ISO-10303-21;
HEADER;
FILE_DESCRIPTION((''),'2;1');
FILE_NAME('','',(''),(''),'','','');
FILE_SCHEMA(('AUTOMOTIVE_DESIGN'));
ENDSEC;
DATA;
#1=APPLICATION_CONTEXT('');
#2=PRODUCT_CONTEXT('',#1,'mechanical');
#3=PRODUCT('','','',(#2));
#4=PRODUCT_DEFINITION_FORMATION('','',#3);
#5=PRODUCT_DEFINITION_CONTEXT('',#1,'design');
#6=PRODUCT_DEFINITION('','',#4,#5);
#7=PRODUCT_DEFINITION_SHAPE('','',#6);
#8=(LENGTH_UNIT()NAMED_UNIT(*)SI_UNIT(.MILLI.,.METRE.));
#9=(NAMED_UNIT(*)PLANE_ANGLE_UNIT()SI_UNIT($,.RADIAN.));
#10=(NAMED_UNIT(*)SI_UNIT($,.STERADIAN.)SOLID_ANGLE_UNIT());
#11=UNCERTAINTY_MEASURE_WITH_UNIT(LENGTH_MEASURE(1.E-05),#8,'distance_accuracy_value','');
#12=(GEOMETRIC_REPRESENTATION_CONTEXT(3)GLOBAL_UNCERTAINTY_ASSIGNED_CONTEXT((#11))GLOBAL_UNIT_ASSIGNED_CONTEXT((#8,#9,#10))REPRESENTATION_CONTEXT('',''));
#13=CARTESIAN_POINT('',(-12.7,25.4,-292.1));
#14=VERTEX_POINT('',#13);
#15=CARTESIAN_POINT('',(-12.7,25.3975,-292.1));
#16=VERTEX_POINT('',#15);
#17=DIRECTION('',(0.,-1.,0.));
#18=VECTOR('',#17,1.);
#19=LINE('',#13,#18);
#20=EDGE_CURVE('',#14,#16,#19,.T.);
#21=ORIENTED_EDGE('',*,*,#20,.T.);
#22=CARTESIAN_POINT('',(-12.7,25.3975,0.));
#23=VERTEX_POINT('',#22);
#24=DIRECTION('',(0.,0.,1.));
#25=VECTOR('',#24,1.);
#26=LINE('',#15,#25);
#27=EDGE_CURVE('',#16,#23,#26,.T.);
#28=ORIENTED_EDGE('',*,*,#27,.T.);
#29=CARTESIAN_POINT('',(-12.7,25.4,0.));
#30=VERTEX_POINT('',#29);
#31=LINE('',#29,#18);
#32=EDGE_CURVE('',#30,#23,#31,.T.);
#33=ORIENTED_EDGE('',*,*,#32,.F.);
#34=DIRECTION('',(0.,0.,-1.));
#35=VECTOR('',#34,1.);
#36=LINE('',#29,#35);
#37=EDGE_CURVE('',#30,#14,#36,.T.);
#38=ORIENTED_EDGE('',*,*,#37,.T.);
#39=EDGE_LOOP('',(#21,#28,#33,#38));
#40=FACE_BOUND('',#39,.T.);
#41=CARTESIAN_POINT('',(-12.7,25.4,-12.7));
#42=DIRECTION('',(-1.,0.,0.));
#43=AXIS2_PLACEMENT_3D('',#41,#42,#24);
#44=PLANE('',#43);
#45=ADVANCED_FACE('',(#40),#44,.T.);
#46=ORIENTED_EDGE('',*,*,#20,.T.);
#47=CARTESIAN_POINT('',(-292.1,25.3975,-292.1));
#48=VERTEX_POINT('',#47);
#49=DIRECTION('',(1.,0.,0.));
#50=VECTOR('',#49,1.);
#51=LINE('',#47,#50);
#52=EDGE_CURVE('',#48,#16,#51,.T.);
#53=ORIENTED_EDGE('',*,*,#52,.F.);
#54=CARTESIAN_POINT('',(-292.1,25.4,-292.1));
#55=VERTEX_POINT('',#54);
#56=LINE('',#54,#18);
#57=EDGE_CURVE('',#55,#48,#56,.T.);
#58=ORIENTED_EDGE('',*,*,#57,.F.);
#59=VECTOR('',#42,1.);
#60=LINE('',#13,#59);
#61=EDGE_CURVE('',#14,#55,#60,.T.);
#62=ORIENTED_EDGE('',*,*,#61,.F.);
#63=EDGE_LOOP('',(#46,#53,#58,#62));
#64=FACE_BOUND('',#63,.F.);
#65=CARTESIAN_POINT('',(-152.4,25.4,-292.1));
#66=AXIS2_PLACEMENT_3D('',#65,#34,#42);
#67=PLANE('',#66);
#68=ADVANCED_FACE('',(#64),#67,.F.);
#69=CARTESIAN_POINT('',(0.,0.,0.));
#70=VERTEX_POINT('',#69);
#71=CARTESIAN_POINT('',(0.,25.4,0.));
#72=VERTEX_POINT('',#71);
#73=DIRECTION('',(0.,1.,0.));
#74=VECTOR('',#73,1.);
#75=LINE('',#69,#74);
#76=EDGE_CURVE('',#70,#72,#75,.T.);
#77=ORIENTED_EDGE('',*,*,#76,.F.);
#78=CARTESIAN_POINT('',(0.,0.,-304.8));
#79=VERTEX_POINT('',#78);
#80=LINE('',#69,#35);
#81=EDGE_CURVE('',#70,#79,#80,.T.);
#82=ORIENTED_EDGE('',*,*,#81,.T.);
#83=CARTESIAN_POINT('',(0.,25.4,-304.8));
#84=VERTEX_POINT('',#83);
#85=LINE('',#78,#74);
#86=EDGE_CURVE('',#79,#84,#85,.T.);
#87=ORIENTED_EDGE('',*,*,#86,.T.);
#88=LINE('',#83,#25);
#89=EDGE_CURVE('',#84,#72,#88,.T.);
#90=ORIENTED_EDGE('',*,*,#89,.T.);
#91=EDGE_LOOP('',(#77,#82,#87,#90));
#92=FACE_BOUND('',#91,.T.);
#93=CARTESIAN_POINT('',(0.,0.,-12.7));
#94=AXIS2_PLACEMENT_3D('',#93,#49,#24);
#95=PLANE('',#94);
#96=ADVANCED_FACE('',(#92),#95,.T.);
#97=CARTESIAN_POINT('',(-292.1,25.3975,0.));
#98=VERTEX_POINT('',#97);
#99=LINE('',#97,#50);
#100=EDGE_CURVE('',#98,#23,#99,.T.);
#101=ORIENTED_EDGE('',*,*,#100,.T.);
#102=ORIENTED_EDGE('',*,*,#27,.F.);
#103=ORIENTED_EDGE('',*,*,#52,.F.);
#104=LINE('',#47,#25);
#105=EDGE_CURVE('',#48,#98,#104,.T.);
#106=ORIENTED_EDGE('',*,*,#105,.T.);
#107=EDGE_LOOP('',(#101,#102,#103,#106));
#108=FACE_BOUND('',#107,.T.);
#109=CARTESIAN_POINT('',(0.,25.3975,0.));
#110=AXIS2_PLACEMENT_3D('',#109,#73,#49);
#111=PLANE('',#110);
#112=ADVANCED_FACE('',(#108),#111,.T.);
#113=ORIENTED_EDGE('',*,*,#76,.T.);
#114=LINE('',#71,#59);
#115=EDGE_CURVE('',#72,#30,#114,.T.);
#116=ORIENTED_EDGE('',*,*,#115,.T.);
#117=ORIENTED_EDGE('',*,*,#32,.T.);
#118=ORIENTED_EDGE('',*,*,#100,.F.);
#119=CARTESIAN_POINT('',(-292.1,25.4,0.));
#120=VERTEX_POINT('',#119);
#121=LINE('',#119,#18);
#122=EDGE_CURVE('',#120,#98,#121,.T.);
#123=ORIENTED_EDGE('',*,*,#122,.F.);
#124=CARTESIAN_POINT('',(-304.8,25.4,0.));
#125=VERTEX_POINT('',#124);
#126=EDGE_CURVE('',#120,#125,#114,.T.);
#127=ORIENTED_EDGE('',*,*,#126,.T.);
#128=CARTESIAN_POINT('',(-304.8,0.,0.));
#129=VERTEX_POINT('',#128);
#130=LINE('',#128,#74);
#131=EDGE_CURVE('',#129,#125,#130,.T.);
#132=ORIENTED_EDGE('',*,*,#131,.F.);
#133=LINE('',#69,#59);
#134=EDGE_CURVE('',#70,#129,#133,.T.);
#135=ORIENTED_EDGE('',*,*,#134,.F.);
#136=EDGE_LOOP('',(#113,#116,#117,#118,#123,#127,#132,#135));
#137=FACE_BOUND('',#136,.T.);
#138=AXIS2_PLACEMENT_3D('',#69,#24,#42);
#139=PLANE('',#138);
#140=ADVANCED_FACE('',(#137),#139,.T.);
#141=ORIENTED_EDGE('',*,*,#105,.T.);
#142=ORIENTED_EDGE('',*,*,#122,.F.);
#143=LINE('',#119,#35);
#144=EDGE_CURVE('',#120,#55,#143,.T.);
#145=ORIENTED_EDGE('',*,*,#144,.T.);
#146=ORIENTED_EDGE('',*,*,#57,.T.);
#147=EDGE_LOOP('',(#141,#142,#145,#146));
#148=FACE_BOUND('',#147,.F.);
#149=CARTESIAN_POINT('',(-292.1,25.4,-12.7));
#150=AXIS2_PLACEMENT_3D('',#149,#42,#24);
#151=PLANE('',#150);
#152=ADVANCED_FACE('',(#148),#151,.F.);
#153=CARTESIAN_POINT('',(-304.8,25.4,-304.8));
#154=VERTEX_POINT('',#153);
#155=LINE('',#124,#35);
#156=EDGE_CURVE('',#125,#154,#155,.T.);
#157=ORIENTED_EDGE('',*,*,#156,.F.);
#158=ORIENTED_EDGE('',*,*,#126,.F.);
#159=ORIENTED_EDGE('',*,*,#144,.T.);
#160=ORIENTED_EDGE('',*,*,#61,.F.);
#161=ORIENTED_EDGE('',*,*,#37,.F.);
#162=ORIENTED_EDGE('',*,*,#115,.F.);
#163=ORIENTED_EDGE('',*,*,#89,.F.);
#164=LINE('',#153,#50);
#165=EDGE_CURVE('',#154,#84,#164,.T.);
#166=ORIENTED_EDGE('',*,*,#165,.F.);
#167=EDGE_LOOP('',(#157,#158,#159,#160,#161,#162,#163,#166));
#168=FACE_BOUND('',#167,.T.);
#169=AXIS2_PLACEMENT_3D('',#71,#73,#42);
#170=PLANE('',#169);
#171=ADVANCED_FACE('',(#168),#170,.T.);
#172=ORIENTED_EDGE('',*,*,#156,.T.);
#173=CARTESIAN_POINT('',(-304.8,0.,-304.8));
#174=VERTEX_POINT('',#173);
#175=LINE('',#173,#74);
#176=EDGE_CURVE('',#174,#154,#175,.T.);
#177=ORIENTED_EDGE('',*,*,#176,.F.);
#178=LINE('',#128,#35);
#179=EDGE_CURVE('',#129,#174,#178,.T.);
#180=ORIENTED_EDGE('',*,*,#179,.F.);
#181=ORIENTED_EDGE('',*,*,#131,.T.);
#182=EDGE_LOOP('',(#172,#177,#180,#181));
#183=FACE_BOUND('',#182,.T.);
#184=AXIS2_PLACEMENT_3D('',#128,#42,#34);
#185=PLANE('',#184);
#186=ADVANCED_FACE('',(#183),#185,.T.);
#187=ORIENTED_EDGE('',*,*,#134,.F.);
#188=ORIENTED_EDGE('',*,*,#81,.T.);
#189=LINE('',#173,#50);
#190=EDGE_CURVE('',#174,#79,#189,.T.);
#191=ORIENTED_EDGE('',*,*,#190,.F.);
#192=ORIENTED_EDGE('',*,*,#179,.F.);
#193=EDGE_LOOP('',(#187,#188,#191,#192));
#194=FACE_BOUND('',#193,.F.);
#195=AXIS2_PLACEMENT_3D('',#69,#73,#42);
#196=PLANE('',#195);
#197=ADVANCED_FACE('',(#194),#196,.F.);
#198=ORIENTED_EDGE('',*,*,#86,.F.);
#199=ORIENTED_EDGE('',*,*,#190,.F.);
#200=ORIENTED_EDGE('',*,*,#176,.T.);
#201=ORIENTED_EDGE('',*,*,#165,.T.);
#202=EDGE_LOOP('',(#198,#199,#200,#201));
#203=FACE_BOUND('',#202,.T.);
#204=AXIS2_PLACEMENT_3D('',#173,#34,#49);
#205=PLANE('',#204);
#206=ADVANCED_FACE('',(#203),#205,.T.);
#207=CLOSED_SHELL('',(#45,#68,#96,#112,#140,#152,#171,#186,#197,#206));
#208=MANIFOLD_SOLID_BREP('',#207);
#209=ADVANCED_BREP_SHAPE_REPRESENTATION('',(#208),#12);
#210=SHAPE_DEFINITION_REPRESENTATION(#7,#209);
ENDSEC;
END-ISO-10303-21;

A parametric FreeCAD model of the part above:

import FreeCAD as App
import Part
import Sketcher
Q = App.Units.Quantity

doc = App.newDocument("Part")
params = doc.addObject("Spreadsheet::Sheet", "Params")
for row, (alias, value) in enumerate([
    ("sketch1_width", "12 in"),
    ("pad1_length", "1 in"),
    ("sketch2_width", "11 in"),
    ("sketch2_height", "11.5 in"),
    ("pocket1_length", "0.0000984 in"),
], start=1):
    params.set(f"A{row}", alias)
    params.set(f"B{row}", "=" + value)
    params.setAlias(f"B{row}", alias)

body = doc.addObject("PartDesign::Body", "Body")

# Sketch on XZ plane
sketch1 = body.newObject("Sketcher::SketchObject", "Sketch")
sketch1.AttachmentSupport = (doc.getObject("XZ_Plane"), [""])
sketch1.MapMode = "FlatFace"
sketch1.addGeometry(Part.LineSegment(App.Vector(-305, 0, 0), App.Vector(0, 0, 0)), False)
sketch1.addGeometry(Part.LineSegment(App.Vector(0, 0, 0), App.Vector(0, -305, 0)), False)
sketch1.addGeometry(Part.LineSegment(App.Vector(0, -305, 0), App.Vector(-305, -305, 0)), False)
sketch1.addGeometry(Part.LineSegment(App.Vector(-305, -305, 0), App.Vector(-305, 0, 0)), False)
sketch1.addConstraint(Sketcher.Constraint("Coincident", 0, 2, 1, 1))
sketch1.addConstraint(Sketcher.Constraint("Coincident", 1, 2, 2, 1))
sketch1.addConstraint(Sketcher.Constraint("Coincident", 2, 2, 3, 1))
sketch1.addConstraint(Sketcher.Constraint("Coincident", 3, 2, 0, 1))
sketch1.addConstraint(Sketcher.Constraint("Horizontal", 0))
sketch1.addConstraint(Sketcher.Constraint("Vertical", 1))
sketch1.addConstraint(Sketcher.Constraint("Horizontal", 2))
sketch1.addConstraint(Sketcher.Constraint("Vertical", 3))
sketch1.addConstraint(Sketcher.Constraint("Coincident", 0, 2, -1, 1))
sketch1.addConstraint(Sketcher.Constraint("Equal", 2, 1))
sketch1.addConstraint(Sketcher.Constraint("DistanceX", 0, 1, 0, 2, Q("12 in")))
sketch1.setExpression("Constraints[10]", "Params.sketch1_width")
pad1 = body.newObject("PartDesign::Pad", "Pad")
pad1.Profile = sketch1
pad1.setExpression("Length", "Params.pad1_length")
pad1.Reversed = True

# Sketch on XZ plane
sketch2 = body.newObject("Sketcher::SketchObject", "Sketch001")
sketch2.AttachmentSupport = (doc.getObject("XZ_Plane"), [""])
sketch2.MapMode = "FlatFace"
sketch2.AttachmentOffset = App.Placement(App.Vector(0, 0, -1 * 25.4), App.Rotation())
sketch2.addGeometry(Part.LineSegment(App.Vector(-292, 0, 0), App.Vector(-13, 0, 0)), False)
sketch2.addGeometry(Part.LineSegment(App.Vector(-13, 0, 0), App.Vector(-13, -292, 0)), False)
sketch2.addGeometry(Part.LineSegment(App.Vector(-13, -292, 0), App.Vector(-292, -292, 0)), False)
sketch2.addGeometry(Part.LineSegment(App.Vector(-292, -292, 0), App.Vector(-292, 0, 0)), False)
sketch2.addConstraint(Sketcher.Constraint("Coincident", 0, 2, 1, 1))
sketch2.addConstraint(Sketcher.Constraint("Coincident", 1, 2, 2, 1))
sketch2.addConstraint(Sketcher.Constraint("Coincident", 2, 2, 3, 1))
sketch2.addConstraint(Sketcher.Constraint("Coincident", 3, 2, 0, 1))
sketch2.addConstraint(Sketcher.Constraint("Horizontal", 0))
sketch2.addConstraint(Sketcher.Constraint("Vertical", 1))
sketch2.addConstraint(Sketcher.Constraint("Horizontal", 2))
sketch2.addConstraint(Sketcher.Constraint("Vertical", 3))
sketch2.addConstraint(Sketcher.Constraint("PointOnObject", 0, 2, -1))
sketch2.addConstraint(Sketcher.Constraint("DistanceX", 0, 1, 0, 2, Q("11 in")))
sketch2.addConstraint(Sketcher.Constraint("DistanceY", 1, 2, 1, 1, Q("11.5 in")))
sketch2.addConstraint(Sketcher.Constraint("DistanceX", 0, 2, -1, 1, Q("0.5 in")))
sketch2.setExpression("Constraints[9]", "Params.sketch2_width")
sketch2.setExpression("Constraints[10]", "Params.sketch2_height")
pocket1 = body.newObject("PartDesign::Pocket", "Pocket")
pocket1.Profile = sketch2
pocket1.setExpression("Length", "Params.pocket1_length")
pocket1.Reversed = True

doc.recompute()
